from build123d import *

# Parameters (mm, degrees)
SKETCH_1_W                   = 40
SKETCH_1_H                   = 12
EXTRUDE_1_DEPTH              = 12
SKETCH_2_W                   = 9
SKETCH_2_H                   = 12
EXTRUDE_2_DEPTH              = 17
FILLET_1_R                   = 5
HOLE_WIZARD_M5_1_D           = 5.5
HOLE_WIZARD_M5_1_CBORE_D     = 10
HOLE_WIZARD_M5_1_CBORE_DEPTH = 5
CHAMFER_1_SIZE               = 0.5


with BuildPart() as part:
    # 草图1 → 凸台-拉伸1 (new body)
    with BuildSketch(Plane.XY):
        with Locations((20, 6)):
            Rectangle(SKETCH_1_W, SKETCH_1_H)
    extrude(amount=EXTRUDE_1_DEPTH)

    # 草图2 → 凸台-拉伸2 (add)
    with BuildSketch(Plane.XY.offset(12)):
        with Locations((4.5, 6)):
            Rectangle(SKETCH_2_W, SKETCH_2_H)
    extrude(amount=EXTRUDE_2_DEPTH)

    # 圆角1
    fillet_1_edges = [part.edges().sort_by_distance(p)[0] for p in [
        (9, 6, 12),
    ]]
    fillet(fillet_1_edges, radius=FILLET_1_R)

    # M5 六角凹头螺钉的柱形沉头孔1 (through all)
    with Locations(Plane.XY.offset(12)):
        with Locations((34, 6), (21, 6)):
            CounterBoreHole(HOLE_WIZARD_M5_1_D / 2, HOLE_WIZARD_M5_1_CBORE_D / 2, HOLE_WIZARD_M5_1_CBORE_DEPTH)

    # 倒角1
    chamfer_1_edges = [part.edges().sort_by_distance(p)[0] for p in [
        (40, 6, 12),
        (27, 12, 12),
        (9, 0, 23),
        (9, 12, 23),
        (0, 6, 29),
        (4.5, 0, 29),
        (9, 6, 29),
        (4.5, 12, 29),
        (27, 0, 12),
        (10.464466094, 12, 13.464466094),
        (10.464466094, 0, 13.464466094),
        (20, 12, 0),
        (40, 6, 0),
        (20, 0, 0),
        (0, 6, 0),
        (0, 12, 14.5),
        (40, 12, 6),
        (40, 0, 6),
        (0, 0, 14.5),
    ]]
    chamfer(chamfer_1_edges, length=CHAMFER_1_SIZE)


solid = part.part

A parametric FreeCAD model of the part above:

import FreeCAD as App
import Part
import Sketcher


def edges_at(feature, points):
    """Names of the edges that pass closest to the given points."""
    edges = feature.Shape.Edges
    near = lambda p: min(range(len(edges)), key=lambda i: edges[i].distToShape(Part.Vertex(*p))[0])
    return sorted({f"Edge{near(p) + 1}" for p in points})


def add_polygon(sketch, points):
    """Adds a closed chain of lines whose ends are joined by coincident constraints."""
    first, n = sketch.GeometryCount, len(points)
    for a, b in zip(points, points[1:] + points[:1]):
        sketch.addGeometry(Part.LineSegment(App.Vector(*a, 0), App.Vector(*b, 0)), False)
    for i in range(n):
        sketch.addConstraint(Sketcher.Constraint("Coincident", first + i, 2, first + (i + 1) % n, 1))

doc = App.newDocument("Part")
body = doc.addObject("PartDesign::Body", "Body")

# Sketch on XY plane
sketch1 = body.newObject("Sketcher::SketchObject", "Sketch")
sketch1.AttachmentSupport = (doc.getObject("XY_Plane"), [""])
sketch1.MapMode = "FlatFace"
add_polygon(sketch1, [(0, 12), (0, 0), (40, 0), (40, 12)])  # lines 0-3
sketch1.addConstraint([
    Sketcher.Constraint("Vertical", 0),
    Sketcher.Constraint("Horizontal", 1),
    Sketcher.Constraint("Vertical", 2),
    Sketcher.Constraint("Horizontal", 3),
    Sketcher.Constraint("Coincident", 0, 2, -1, 1),
    Sketcher.Constraint("DistanceX", 1, 1, 1, 2, 40.0),
    Sketcher.Constraint("DistanceY", 0, 2, 0, 1, 12.0),
])
pad1 = body.newObject("PartDesign::Pad", "Pad")
pad1.Profile = sketch1
pad1.Length = 12

# Sketch on XY plane
sketch2 = body.newObject("Sketcher::SketchObject", "Sketch001")
sketch2.AttachmentSupport = (doc.getObject("XY_Plane"), [""])
sketch2.MapMode = "FlatFace"
sketch2.AttachmentOffset = App.Placement(App.Vector(0, 0, 12), App.Rotation())
add_polygon(sketch2, [(0, 12), (0, 0), (9, 0), (9, 12)])  # lines 0-3
sketch2.addConstraint([
    Sketcher.Constraint("Vertical", 0),
    Sketcher.Constraint("Horizontal", 1),
    Sketcher.Constraint("Vertical", 2),
    Sketcher.Constraint("Horizontal", 3),
    Sketcher.Constraint("Coincident", 0, 2, -1, 1),
    Sketcher.Constraint("DistanceX", 1, 1, 1, 2, 9.0),
    Sketcher.Constraint("DistanceY", 0, 2, 0, 1, 12.0),
])
pad2 = body.newObject("PartDesign::Pad", "Pad001")
pad2.Profile = sketch2
pad2.Length = 17
doc.recompute()

fillet = body.newObject("PartDesign::Fillet", "Fillet")
fillet.Base = (pad2, edges_at(pad2, [(9, 6, 12)]))
fillet.Radius = 5

# Sketch on XY plane
sketch3 = body.newObject("Sketcher::SketchObject", "Sketch002")
sketch3.AttachmentSupport = (doc.getObject("XY_Plane"), [""])
sketch3.MapMode = "FlatFace"
sketch3.AttachmentOffset = App.Placement(App.Vector(0, 0, 12), App.Rotation())
sketch3.addGeometry([
    Part.Circle(App.Vector(34, 6, 0), App.Vector(0, 0, 1), 2.8),
    Part.Circle(App.Vector(21, 6, 0), App.Vector(0, 0, 1), 2.8),
], False)
sketch3.addConstraint([
    Sketcher.Constraint("Equal", 0, 1),
    Sketcher.Constraint("Horizontal", 0, 3, 1, 3),
    Sketcher.Constraint("Diameter", 0, 5.5),
    Sketcher.Constraint("DistanceX", -1, 1, 0, 3, 34.0),
    Sketcher.Constraint("DistanceY", -1, 1, 0, 3, 6.0),
    Sketcher.Constraint("DistanceX", -1, 1, 1, 3, 21.0),
])
doc.recompute()
hole = body.newObject("PartDesign::Hole", "Hole")
hole.Profile = sketch3
hole.ThreadType = "None"
hole.Diameter = 5.5
hole.DepthType = "ThroughAll"
hole.HoleCutType = "Counterbore"
hole.HoleCutDiameter = 10
hole.HoleCutDepth = 5
doc.recompute()

chamfer = body.newObject("PartDesign::Chamfer", "Chamfer")
chamfer.Base = (hole, edges_at(hole, [
    (40, 6, 12),
    (27, 12, 12),
    (9, 0, 23),
    (9, 12, 23),
    (0, 6, 29),
    (4.5, 0, 29),
    (9, 6, 29),
    (4.5, 12, 29),
    (27, 0, 12),
    (10.464, 12, 13.464),
    (10.464, 0, 13.464),
    (20, 12, 0),
    (40, 6, 0),
    (20, 0, 0),
    (0, 6, 0),
    (0, 12, 14.5),
    (40, 12, 6),
    (40, 0, 6),
    (0, 0, 14.5),
]))
chamfer.Size = 0.5

doc.recompute()
